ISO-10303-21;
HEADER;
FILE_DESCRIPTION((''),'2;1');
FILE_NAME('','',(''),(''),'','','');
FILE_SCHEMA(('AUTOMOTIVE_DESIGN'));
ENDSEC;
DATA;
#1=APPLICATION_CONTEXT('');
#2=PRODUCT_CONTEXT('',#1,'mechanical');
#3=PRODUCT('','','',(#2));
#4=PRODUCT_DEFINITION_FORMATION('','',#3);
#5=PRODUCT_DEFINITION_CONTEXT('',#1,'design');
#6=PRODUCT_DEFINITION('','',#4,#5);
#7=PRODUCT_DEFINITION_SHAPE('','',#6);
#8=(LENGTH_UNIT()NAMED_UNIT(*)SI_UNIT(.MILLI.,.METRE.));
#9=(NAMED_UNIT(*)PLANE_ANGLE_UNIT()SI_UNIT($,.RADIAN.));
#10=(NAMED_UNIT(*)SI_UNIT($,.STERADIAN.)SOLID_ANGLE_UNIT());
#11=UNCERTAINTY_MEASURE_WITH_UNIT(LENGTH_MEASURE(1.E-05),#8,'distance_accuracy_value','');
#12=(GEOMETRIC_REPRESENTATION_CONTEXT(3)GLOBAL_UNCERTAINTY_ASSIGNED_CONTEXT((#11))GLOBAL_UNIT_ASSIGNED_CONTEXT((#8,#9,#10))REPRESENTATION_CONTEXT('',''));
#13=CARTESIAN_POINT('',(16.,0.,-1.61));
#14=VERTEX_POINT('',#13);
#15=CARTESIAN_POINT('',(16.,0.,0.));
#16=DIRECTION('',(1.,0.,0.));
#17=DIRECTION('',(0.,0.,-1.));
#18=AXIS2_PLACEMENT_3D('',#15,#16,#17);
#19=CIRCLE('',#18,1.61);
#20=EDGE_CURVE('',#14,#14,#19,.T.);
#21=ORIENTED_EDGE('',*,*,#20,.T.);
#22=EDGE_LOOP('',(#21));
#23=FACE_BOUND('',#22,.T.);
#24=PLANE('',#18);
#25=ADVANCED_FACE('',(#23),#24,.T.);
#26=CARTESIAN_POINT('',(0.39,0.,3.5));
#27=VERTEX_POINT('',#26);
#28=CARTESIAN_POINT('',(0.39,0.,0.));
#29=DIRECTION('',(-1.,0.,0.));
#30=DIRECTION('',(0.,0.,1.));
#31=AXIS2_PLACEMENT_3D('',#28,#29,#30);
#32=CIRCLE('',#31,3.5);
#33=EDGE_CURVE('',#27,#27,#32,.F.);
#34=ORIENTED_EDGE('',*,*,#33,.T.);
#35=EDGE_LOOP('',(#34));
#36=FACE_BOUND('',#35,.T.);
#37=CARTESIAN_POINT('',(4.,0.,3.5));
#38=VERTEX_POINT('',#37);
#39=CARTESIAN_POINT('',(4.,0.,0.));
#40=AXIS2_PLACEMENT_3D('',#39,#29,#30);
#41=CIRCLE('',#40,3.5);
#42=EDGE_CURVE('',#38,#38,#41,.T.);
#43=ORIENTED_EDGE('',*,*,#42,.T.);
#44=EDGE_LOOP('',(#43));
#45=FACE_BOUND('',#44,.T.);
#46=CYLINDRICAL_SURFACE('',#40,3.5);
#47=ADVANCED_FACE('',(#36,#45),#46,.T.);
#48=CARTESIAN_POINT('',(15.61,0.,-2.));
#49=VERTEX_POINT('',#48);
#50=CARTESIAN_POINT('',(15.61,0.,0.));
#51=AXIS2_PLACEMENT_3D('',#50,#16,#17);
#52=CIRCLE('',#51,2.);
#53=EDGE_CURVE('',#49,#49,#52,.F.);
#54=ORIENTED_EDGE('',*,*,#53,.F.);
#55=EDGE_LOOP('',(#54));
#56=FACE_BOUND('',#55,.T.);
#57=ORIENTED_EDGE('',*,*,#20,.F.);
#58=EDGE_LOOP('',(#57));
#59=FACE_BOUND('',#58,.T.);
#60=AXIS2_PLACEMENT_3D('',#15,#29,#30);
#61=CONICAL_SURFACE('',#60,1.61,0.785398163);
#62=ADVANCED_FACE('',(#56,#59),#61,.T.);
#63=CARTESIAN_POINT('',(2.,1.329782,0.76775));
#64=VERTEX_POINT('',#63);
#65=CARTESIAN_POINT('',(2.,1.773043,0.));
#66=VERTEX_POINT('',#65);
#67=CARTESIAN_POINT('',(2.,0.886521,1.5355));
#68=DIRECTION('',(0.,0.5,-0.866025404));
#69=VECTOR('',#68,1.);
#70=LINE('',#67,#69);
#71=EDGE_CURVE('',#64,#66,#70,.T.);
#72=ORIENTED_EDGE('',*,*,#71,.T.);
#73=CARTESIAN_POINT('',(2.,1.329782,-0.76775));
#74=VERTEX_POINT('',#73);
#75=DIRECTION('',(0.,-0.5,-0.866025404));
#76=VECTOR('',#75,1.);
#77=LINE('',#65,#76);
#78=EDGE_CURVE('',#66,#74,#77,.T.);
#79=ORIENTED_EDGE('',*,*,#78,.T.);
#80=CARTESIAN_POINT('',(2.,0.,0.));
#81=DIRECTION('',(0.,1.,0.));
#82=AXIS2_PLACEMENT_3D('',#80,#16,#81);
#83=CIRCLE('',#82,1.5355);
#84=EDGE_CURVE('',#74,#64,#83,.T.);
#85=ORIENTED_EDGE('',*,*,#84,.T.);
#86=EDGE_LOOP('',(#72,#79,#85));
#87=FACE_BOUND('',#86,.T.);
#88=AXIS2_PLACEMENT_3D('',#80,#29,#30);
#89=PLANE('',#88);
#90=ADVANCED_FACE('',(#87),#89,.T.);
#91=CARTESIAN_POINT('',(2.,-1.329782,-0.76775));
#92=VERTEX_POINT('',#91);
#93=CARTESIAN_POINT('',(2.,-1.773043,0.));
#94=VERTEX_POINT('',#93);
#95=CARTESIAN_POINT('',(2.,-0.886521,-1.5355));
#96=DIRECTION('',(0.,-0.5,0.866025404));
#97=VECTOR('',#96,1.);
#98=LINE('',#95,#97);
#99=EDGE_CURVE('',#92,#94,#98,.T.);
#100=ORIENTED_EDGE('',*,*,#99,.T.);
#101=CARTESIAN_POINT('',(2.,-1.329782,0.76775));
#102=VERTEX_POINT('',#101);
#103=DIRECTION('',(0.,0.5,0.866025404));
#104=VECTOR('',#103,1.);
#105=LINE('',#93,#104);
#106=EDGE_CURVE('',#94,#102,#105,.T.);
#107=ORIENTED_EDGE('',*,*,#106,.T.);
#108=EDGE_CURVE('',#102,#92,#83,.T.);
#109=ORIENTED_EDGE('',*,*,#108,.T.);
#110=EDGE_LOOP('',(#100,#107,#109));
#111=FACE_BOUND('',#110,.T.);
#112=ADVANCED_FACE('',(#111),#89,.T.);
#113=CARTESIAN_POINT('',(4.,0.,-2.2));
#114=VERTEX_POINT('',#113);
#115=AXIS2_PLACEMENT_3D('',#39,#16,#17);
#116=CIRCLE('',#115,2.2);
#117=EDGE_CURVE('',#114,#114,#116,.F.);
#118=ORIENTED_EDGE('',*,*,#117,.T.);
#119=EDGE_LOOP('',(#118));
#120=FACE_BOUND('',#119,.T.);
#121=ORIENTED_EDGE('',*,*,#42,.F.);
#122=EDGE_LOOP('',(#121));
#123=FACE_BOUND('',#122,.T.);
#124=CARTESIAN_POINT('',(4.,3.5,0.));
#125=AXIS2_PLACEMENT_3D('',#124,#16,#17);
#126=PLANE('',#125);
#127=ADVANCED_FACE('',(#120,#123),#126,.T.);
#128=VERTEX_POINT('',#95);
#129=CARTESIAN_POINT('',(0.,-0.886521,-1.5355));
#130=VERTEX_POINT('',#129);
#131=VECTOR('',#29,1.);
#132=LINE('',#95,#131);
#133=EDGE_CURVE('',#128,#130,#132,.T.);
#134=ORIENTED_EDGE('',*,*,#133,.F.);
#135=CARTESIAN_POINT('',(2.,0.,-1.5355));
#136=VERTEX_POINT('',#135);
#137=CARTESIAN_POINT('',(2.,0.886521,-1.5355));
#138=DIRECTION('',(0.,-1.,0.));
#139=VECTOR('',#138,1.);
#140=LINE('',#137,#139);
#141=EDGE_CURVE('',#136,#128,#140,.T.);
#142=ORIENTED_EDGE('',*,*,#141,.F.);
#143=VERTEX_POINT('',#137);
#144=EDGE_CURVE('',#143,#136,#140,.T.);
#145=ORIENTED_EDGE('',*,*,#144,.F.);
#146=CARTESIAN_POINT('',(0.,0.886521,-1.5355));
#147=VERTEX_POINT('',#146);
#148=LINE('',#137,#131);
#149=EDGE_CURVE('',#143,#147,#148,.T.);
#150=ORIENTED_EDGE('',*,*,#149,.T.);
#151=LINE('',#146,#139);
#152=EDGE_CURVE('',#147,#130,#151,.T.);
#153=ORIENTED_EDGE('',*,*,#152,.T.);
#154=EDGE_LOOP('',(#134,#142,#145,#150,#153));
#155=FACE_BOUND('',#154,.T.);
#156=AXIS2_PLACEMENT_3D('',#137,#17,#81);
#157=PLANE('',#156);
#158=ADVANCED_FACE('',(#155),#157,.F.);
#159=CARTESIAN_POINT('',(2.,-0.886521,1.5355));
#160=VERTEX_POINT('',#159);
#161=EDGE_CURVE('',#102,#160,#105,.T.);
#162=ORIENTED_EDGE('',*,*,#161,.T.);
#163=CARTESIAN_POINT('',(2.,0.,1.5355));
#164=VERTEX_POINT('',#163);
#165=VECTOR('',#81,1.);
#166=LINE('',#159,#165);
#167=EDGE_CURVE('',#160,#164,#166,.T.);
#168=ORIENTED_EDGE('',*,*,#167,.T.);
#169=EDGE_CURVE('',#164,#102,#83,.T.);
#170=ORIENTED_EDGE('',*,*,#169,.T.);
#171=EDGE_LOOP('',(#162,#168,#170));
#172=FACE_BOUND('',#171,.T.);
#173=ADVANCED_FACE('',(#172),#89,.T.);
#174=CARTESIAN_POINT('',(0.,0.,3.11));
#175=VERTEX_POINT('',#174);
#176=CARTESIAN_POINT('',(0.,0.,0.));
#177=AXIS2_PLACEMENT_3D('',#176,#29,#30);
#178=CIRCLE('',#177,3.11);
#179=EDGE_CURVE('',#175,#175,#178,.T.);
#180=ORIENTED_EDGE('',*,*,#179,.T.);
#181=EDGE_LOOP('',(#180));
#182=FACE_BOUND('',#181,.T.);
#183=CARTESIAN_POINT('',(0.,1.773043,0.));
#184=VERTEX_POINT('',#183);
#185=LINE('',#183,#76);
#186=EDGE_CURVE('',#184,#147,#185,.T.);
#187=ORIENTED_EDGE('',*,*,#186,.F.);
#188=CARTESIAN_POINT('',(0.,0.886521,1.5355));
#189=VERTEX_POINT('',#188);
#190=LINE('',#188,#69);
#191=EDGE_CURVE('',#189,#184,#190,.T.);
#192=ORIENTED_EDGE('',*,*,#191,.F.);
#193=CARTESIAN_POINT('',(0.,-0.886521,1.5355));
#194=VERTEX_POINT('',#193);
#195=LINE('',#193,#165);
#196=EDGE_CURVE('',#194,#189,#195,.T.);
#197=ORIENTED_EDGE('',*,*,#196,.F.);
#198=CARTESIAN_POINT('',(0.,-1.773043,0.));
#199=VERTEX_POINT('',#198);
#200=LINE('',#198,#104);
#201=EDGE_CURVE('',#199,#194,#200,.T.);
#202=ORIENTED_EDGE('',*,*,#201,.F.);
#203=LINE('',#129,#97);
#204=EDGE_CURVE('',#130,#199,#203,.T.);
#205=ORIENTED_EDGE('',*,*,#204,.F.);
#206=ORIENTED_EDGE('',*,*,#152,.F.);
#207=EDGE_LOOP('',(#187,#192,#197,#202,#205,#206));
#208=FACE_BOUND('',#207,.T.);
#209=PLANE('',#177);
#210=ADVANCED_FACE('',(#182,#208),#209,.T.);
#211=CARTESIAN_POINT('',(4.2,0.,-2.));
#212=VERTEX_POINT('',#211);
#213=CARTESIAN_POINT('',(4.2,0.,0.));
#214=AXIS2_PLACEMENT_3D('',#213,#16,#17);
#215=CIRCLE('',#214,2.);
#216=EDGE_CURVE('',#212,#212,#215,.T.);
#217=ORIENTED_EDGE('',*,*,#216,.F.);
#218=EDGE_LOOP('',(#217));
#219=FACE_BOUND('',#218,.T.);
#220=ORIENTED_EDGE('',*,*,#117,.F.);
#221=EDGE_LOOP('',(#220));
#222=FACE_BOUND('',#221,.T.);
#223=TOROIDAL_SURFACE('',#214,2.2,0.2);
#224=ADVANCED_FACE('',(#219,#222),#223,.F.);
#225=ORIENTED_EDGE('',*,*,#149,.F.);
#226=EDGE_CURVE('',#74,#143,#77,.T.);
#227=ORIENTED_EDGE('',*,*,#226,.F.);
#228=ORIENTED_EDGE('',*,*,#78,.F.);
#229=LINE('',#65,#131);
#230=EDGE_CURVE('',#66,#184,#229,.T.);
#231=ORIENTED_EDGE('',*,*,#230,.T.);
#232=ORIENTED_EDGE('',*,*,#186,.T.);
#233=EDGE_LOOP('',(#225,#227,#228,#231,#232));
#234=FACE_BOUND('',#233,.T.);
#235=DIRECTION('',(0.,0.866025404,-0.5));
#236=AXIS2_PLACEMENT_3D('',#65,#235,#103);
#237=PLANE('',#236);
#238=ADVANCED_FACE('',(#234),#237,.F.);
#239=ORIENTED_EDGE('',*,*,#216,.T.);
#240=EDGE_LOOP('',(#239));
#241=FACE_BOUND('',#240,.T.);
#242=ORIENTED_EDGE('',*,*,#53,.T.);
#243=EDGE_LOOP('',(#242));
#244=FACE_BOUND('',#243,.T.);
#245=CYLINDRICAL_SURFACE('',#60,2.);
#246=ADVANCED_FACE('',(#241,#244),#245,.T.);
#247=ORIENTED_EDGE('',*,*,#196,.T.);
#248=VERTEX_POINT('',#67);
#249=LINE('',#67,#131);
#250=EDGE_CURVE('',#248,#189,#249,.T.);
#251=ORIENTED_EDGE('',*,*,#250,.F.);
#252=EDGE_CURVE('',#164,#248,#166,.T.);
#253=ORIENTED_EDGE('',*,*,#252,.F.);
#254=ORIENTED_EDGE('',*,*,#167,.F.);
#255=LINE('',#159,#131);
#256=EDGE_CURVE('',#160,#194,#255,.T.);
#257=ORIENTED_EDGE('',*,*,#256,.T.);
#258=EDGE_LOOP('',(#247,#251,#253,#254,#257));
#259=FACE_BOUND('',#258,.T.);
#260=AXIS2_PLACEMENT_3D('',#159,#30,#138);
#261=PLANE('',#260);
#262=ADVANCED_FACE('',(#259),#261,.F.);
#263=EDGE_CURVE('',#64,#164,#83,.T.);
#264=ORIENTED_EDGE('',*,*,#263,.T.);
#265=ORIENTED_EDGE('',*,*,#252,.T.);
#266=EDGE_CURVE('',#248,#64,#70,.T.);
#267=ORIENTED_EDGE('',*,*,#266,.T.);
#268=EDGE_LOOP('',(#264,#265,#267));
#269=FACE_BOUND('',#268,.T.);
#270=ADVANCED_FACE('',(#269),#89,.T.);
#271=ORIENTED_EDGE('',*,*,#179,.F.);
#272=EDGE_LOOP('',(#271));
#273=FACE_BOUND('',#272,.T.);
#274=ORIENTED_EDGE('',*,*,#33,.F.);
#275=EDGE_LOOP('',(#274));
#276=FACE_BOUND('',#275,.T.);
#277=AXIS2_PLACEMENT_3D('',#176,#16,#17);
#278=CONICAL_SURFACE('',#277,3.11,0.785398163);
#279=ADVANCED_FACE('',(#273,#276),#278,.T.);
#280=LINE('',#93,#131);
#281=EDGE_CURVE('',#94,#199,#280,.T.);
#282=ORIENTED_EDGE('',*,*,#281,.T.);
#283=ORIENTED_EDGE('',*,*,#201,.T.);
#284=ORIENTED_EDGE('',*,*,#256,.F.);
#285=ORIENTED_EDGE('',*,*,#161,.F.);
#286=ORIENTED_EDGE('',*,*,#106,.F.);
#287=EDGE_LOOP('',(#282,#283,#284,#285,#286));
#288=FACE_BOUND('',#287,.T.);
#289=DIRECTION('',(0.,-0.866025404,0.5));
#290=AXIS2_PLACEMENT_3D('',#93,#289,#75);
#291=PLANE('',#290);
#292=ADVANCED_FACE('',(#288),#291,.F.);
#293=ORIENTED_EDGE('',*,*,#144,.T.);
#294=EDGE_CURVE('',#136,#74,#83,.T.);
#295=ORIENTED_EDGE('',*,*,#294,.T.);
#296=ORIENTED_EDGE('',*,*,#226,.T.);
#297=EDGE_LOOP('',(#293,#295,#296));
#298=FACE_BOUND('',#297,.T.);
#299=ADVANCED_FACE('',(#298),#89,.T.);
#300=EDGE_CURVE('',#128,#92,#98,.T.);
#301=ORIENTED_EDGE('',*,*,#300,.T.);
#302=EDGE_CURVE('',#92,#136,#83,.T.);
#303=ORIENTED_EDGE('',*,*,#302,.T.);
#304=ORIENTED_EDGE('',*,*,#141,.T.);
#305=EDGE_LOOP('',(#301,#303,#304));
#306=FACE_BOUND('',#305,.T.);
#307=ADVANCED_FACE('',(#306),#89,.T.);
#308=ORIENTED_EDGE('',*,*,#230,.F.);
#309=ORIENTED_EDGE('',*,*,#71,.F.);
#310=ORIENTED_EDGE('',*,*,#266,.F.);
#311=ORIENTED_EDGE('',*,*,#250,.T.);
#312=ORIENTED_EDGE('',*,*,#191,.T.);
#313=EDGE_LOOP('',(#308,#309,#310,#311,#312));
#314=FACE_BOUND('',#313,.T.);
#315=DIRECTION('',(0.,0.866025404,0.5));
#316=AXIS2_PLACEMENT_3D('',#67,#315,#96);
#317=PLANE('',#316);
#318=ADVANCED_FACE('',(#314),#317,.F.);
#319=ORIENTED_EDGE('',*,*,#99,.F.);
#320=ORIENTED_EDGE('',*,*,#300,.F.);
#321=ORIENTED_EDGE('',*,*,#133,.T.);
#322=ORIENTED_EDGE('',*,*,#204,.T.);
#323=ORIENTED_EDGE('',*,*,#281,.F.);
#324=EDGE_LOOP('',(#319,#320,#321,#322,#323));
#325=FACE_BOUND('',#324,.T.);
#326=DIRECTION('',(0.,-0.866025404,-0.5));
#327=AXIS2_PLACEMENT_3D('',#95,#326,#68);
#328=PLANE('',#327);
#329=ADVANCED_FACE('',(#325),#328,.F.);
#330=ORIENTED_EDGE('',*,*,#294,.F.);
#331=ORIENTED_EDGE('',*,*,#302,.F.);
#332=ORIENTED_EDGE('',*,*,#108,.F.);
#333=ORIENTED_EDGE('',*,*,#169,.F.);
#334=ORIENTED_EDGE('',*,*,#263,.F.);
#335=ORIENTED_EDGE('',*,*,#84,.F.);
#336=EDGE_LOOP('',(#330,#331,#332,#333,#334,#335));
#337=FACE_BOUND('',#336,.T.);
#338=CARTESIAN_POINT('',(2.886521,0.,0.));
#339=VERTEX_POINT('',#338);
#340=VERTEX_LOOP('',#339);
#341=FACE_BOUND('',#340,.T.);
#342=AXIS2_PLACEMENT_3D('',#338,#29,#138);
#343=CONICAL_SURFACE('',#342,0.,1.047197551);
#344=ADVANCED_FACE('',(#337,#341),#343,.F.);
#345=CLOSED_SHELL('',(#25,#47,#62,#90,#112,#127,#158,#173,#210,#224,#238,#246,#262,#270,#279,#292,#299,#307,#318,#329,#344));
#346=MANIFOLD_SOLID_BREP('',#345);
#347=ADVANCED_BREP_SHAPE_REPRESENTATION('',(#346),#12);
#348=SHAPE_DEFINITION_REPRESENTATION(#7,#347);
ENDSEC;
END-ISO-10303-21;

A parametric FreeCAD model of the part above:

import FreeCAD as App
import Part
import Sketcher
from FreeCAD import Vector
Q = App.Units.Quantity


def edges_at(feature, points):
    """Names of the edges that pass closest to the given points."""
    edges = feature.Shape.Edges
    near = lambda p: min(range(len(edges)), key=lambda i: edges[i].distToShape(Part.Vertex(*p))[0])
    return sorted({f"Edge{near(p) + 1}" for p in points})


def add_polygon(sketch, points):
    """Adds a closed chain of lines whose ends are joined by coincident constraints."""
    first, n = sketch.GeometryCount, len(points)
    for a, b in zip(points, points[1:] + points[:1]):
        sketch.addGeometry(Part.LineSegment(App.Vector(*a, 0), App.Vector(*b, 0)), False)
    for i in range(n):
        sketch.addConstraint(Sketcher.Constraint("Coincident", first + i, 2, first + (i + 1) % n, 1))

doc = App.newDocument("Part")
params = doc.addObject("Spreadsheet::Sheet", "Params")
for row, (alias, value) in enumerate([
    ("sketch1_width", "4 mm"),
    ("sketch1_height", "3.5 mm"),
    ("revolution_angle", "360 deg"),
    ("sketch2_diameter", "4 mm"),
    ("pad1_length", "12 mm"),
    ("pocket1_length", "2 mm"),
    ("groove_angle", "360 deg"),
    ("chamfer_size", "0.39 mm"),
    ("fillet_radius", "0.2 mm"),
], start=1):
    params.set(f"A{row}", alias)
    params.set(f"B{row}", "=" + value)
    params.setAlias(f"B{row}", alias)

body = doc.addObject("PartDesign::Body", "Body")

# Sketch on XY plane
sketch1 = body.newObject("Sketcher::SketchObject", "Sketch")
sketch1.AttachmentSupport = (doc.getObject("XY_Plane"), [""])
sketch1.MapMode = "FlatFace"
add_polygon(sketch1, [(4, 3.5), (4, 0), (0, 0), (0, 3.5)])  # lines 0-3
sketch1.addConstraint([
    Sketcher.Constraint("Vertical", 0),
    Sketcher.Constraint("Horizontal", 1),
    Sketcher.Constraint("Vertical", 2),
    Sketcher.Constraint("Horizontal", 3),
    Sketcher.Constraint("Coincident", 1, 2, -1, 1),
    Sketcher.Constraint("DistanceX", 1, 2, 1, 1, Q("4 mm")),
    Sketcher.Constraint("DistanceY", 0, 2, 0, 1, Q("3.5 mm")),
])
sketch1.setExpression("Constraints[9]", "Params.sketch1_width")
sketch1.setExpression("Constraints[10]", "Params.sketch1_height")
revolution = body.newObject("PartDesign::Revolution", "Revolution")
revolution.Profile = sketch1
revolution.ReferenceAxis = (sketch1, ["H_Axis"])
revolution.setExpression("Angle", "Params.revolution_angle")

# Sketch on YZ plane
sketch2 = body.newObject("Sketcher::SketchObject", "Sketch001")
sketch2.AttachmentSupport = (doc.getObject("YZ_Plane"), [""])
sketch2.MapMode = "FlatFace"
sketch2.AttachmentOffset = App.Placement(Vector(0, 0, 4), App.Rotation())
sketch2.addGeometry(Part.Circle(Vector(0, 0, 0), Vector(0, 0, 1), 2), False)
sketch2.addConstraint([
    Sketcher.Constraint("Coincident", 0, 3, -1, 1),
    Sketcher.Constraint("Diameter", 0, Q("4 mm")),
])
sketch2.setExpression("Constraints[1]", "Params.sketch2_diameter")
pad1 = body.newObject("PartDesign::Pad", "Pad")
pad1.Profile = sketch2
pad1.setExpression("Length", "Params.pad1_length")

# Sketch on YZ plane
sketch3 = body.newObject("Sketcher::SketchObject", "Sketch002")
sketch3.AttachmentSupport = (doc.getObject("YZ_Plane"), [""])
sketch3.MapMode = "FlatFace"
add_polygon(sketch3, [(-0.9, 1.5), (0.9, 1.5), (1.8, 0), (0.9, -1.5), (-0.9, -1.5), (-1.8, 0)])  # lines 0-5
sketch3.addConstraint([
    Sketcher.Constraint("Horizontal", 0),
    Sketcher.Constraint("Horizontal", 3),
    Sketcher.Constraint("Symmetric", 0, 2, 3, 2, -1, 1),
    Sketcher.Constraint("Symmetric", 1, 2, 4, 2, -1, 1),
    Sketcher.Constraint("PointOnObject", 1, 2, -1),
    Sketcher.Constraint("Parallel", 2, 5),
    Sketcher.Constraint("Vertical", 0, 2, 2, 2),
    Sketcher.Constraint("Angle", 1, Q("-60 deg")),
    Sketcher.Constraint("DistanceY", 2, 2, 0, 2, Q("3.071 mm")),
    Sketcher.Constraint("DistanceX", 0, 1, 0, 2, Q("1.773043 mm")),
])
pocket1 = body.newObject("PartDesign::Pocket", "Pocket")
pocket1.Profile = sketch3
pocket1.setExpression("Length", "Params.pocket1_length")
pocket1.Reversed = True

# Sketch on XY plane
sketch4 = body.newObject("Sketcher::SketchObject", "Sketch003")
sketch4.AttachmentSupport = (doc.getObject("XY_Plane"), [""])
sketch4.MapMode = "FlatFace"
add_polygon(sketch4, [(2, 1.5), (2, 0), (2.9, 0)])  # lines 0-2
sketch4.addConstraint([
    Sketcher.Constraint("Vertical", 0),
    Sketcher.Constraint("Horizontal", 1),
    Sketcher.Constraint("PointOnObject", 0, 2, -1),
    Sketcher.Constraint("Angle", 2, Q("120 deg")),
    Sketcher.Constraint("DistanceX", -1, 1, 0, 2, Q("2 mm")),
    Sketcher.Constraint("DistanceY", 0, 2, 0, 1, Q("1.5355 mm")),
])
groove = body.newObject("PartDesign::Groove", "Groove")
groove.Profile = sketch4
groove.ReferenceAxis = (sketch4, ["H_Axis"])
groove.setExpression("Angle", "Params.groove_angle")
doc.recompute()

chamfer = body.newObject("PartDesign::Chamfer", "Chamfer")
chamfer.Base = (groove, edges_at(groove, [(0, -3.5, 0), (16, 0, 2)]))
chamfer.setExpression("Size", "Params.chamfer_size")
doc.recompute()

fillet = body.newObject("PartDesign::Fillet", "Fillet")
fillet.Base = (chamfer, edges_at(chamfer, [(4, 0, 2)]))
fillet.setExpression("Radius", "Params.fillet_radius")

doc.recompute()
